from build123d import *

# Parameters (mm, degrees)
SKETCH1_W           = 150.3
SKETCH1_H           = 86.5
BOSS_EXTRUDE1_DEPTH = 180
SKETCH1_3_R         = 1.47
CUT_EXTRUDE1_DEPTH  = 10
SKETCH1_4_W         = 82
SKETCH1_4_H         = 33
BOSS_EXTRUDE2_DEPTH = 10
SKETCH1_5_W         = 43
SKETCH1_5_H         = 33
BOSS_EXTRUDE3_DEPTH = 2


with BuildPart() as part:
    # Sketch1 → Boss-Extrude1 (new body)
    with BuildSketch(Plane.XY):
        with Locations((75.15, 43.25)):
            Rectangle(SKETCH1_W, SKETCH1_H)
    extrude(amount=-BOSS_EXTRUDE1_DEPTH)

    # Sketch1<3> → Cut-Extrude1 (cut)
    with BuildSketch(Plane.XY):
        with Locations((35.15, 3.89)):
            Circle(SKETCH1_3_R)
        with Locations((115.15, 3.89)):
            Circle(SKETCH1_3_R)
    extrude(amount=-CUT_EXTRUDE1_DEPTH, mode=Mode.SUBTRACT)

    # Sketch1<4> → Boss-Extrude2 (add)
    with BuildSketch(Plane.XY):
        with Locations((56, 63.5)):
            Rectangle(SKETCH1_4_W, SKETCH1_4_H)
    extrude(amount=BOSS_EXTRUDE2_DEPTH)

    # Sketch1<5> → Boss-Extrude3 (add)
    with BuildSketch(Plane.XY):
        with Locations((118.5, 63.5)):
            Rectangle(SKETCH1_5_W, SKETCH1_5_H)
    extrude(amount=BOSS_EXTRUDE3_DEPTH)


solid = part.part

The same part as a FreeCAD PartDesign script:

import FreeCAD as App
import Part
import Sketcher

V = App.Vector
Q = App.Units.Quantity

doc = App.newDocument("Part")
body = doc.addObject("PartDesign::Body", "Body")

sketch1 = body.newObject("Sketcher::SketchObject", "Sketch")
sketch1.AttachmentSupport = (doc.getObject("XY_Plane"), [""])
sketch1.MapMode = "FlatFace"
sketch1.addGeometry([
    Part.LineSegment(V(0, 86, 0), V(0, 0, 0)),
    Part.LineSegment(V(0, 0, 0), V(150, 0, 0)),
    Part.LineSegment(V(150, 0, 0), V(150, 86, 0)),
    Part.LineSegment(V(150, 86, 0), V(0, 86, 0)),
], False)
sketch1.addConstraint([
    Sketcher.Constraint("Coincident", 0, 2, 1, 1),
    Sketcher.Constraint("Coincident", 1, 2, 2, 1),
    Sketcher.Constraint("Coincident", 2, 2, 3, 1),
    Sketcher.Constraint("Coincident", 3, 2, 0, 1),
    Sketcher.Constraint("Vertical", 0),
    Sketcher.Constraint("Horizontal", 1),
    Sketcher.Constraint("Vertical", 2),
    Sketcher.Constraint("Horizontal", 3),
    Sketcher.Constraint("Coincident", 0, 2, -1, 1),
    Sketcher.Constraint("DistanceX", 1, 1, 1, 2, Q("150.3 mm")),
    Sketcher.Constraint("DistanceY", 0, 2, 0, 1, Q("86.5 mm")),
])
pad1 = body.newObject("PartDesign::Pad", "Pad")
pad1.Profile = sketch1
pad1.Length = 180
pad1.Reversed = True

sketch2 = body.newObject("Sketcher::SketchObject", "Sketch001")
sketch2.AttachmentSupport = (doc.getObject("XY_Plane"), [""])
sketch2.MapMode = "FlatFace"
sketch2.addGeometry([
    Part.Circle(V(35.1, 3.9, 0), V(0, 0, 1), 1.5),
    Part.Circle(V(115.2, 3.9, 0), V(0, 0, 1), 1.5),
], False)
sketch2.addConstraint([
    Sketcher.Constraint("Equal", 0, 1),
    Sketcher.Constraint("Horizontal", 0, 3, 1, 3),
    Sketcher.Constraint("Diameter", 0, Q("2.94 mm")),
    Sketcher.Constraint("DistanceX", 0, 3, 1, 3, Q("80 mm")),
    Sketcher.Constraint("DistanceX", -1, 1, 0, 3, Q("35.15 mm")),
    Sketcher.Constraint("DistanceY", -1, 1, 0, 3, Q("3.89 mm")),
])
pocket1 = body.newObject("PartDesign::Pocket", "Pocket")
pocket1.Profile = sketch2
pocket1.Length = 10

sketch3 = body.newObject("Sketcher::SketchObject", "Sketch002")
sketch3.AttachmentSupport = (doc.getObject("XY_Plane"), [""])
sketch3.MapMode = "FlatFace"
sketch3.addGeometry([
    Part.LineSegment(V(15, 80, 0), V(15, 47, 0)),
    Part.LineSegment(V(15, 47, 0), V(97, 47, 0)),
    Part.LineSegment(V(97, 47, 0), V(97, 80, 0)),
    Part.LineSegment(V(97, 80, 0), V(15, 80, 0)),
], False)
sketch3.addConstraint([
    Sketcher.Constraint("Coincident", 0, 2, 1, 1),
    Sketcher.Constraint("Coincident", 1, 2, 2, 1),
    Sketcher.Constraint("Coincident", 2, 2, 3, 1),
    Sketcher.Constraint("Coincident", 3, 2, 0, 1),
    Sketcher.Constraint("Vertical", 0),
    Sketcher.Constraint("Horizontal", 1),
    Sketcher.Constraint("Vertical", 2),
    Sketcher.Constraint("Horizontal", 3),
    Sketcher.Constraint("DistanceX", 1, 1, 1, 2, Q("82 mm")),
    Sketcher.Constraint("DistanceY", 0, 2, 0, 1, Q("33 mm")),
    Sketcher.Constraint("DistanceX", -1, 1, 0, 2, Q("15 mm")),
    Sketcher.Constraint("DistanceY", -1, 1, 0, 2, Q("47 mm")),
])
pad2 = body.newObject("PartDesign::Pad", "Pad001")
pad2.Profile = sketch3
pad2.Length = 10

sketch4 = body.newObject("Sketcher::SketchObject", "Sketch003")
sketch4.AttachmentSupport = (doc.getObject("XY_Plane"), [""])
sketch4.MapMode = "FlatFace"
sketch4.addGeometry([
    Part.LineSegment(V(97, 80, 0), V(97, 47, 0)),
    Part.LineSegment(V(97, 47, 0), V(140, 47, 0)),
    Part.LineSegment(V(140, 47, 0), V(140, 80, 0)),
    Part.LineSegment(V(140, 80, 0), V(97, 80, 0)),
], False)
sketch4.addConstraint([
    Sketcher.Constraint("Coincident", 0, 2, 1, 1),
    Sketcher.Constraint("Coincident", 1, 2, 2, 1),
    Sketcher.Constraint("Coincident", 2, 2, 3, 1),
    Sketcher.Constraint("Coincident", 3, 2, 0, 1),
    Sketcher.Constraint("Vertical", 0),
    Sketcher.Constraint("Horizontal", 1),
    Sketcher.Constraint("Vertical", 2),
    Sketcher.Constraint("Horizontal", 3),
    Sketcher.Constraint("DistanceX", 1, 1, 1, 2, Q("43 mm")),
    Sketcher.Constraint("DistanceY", 0, 2, 0, 1, Q("33 mm")),
    Sketcher.Constraint("DistanceX", -1, 1, 0, 2, Q("97 mm")),
    Sketcher.Constraint("DistanceY", -1, 1, 0, 2, Q("47 mm")),
])
pad3 = body.newObject("PartDesign::Pad", "Pad002")
pad3.Profile = sketch4
pad3.Length = 2

doc.recompute()
